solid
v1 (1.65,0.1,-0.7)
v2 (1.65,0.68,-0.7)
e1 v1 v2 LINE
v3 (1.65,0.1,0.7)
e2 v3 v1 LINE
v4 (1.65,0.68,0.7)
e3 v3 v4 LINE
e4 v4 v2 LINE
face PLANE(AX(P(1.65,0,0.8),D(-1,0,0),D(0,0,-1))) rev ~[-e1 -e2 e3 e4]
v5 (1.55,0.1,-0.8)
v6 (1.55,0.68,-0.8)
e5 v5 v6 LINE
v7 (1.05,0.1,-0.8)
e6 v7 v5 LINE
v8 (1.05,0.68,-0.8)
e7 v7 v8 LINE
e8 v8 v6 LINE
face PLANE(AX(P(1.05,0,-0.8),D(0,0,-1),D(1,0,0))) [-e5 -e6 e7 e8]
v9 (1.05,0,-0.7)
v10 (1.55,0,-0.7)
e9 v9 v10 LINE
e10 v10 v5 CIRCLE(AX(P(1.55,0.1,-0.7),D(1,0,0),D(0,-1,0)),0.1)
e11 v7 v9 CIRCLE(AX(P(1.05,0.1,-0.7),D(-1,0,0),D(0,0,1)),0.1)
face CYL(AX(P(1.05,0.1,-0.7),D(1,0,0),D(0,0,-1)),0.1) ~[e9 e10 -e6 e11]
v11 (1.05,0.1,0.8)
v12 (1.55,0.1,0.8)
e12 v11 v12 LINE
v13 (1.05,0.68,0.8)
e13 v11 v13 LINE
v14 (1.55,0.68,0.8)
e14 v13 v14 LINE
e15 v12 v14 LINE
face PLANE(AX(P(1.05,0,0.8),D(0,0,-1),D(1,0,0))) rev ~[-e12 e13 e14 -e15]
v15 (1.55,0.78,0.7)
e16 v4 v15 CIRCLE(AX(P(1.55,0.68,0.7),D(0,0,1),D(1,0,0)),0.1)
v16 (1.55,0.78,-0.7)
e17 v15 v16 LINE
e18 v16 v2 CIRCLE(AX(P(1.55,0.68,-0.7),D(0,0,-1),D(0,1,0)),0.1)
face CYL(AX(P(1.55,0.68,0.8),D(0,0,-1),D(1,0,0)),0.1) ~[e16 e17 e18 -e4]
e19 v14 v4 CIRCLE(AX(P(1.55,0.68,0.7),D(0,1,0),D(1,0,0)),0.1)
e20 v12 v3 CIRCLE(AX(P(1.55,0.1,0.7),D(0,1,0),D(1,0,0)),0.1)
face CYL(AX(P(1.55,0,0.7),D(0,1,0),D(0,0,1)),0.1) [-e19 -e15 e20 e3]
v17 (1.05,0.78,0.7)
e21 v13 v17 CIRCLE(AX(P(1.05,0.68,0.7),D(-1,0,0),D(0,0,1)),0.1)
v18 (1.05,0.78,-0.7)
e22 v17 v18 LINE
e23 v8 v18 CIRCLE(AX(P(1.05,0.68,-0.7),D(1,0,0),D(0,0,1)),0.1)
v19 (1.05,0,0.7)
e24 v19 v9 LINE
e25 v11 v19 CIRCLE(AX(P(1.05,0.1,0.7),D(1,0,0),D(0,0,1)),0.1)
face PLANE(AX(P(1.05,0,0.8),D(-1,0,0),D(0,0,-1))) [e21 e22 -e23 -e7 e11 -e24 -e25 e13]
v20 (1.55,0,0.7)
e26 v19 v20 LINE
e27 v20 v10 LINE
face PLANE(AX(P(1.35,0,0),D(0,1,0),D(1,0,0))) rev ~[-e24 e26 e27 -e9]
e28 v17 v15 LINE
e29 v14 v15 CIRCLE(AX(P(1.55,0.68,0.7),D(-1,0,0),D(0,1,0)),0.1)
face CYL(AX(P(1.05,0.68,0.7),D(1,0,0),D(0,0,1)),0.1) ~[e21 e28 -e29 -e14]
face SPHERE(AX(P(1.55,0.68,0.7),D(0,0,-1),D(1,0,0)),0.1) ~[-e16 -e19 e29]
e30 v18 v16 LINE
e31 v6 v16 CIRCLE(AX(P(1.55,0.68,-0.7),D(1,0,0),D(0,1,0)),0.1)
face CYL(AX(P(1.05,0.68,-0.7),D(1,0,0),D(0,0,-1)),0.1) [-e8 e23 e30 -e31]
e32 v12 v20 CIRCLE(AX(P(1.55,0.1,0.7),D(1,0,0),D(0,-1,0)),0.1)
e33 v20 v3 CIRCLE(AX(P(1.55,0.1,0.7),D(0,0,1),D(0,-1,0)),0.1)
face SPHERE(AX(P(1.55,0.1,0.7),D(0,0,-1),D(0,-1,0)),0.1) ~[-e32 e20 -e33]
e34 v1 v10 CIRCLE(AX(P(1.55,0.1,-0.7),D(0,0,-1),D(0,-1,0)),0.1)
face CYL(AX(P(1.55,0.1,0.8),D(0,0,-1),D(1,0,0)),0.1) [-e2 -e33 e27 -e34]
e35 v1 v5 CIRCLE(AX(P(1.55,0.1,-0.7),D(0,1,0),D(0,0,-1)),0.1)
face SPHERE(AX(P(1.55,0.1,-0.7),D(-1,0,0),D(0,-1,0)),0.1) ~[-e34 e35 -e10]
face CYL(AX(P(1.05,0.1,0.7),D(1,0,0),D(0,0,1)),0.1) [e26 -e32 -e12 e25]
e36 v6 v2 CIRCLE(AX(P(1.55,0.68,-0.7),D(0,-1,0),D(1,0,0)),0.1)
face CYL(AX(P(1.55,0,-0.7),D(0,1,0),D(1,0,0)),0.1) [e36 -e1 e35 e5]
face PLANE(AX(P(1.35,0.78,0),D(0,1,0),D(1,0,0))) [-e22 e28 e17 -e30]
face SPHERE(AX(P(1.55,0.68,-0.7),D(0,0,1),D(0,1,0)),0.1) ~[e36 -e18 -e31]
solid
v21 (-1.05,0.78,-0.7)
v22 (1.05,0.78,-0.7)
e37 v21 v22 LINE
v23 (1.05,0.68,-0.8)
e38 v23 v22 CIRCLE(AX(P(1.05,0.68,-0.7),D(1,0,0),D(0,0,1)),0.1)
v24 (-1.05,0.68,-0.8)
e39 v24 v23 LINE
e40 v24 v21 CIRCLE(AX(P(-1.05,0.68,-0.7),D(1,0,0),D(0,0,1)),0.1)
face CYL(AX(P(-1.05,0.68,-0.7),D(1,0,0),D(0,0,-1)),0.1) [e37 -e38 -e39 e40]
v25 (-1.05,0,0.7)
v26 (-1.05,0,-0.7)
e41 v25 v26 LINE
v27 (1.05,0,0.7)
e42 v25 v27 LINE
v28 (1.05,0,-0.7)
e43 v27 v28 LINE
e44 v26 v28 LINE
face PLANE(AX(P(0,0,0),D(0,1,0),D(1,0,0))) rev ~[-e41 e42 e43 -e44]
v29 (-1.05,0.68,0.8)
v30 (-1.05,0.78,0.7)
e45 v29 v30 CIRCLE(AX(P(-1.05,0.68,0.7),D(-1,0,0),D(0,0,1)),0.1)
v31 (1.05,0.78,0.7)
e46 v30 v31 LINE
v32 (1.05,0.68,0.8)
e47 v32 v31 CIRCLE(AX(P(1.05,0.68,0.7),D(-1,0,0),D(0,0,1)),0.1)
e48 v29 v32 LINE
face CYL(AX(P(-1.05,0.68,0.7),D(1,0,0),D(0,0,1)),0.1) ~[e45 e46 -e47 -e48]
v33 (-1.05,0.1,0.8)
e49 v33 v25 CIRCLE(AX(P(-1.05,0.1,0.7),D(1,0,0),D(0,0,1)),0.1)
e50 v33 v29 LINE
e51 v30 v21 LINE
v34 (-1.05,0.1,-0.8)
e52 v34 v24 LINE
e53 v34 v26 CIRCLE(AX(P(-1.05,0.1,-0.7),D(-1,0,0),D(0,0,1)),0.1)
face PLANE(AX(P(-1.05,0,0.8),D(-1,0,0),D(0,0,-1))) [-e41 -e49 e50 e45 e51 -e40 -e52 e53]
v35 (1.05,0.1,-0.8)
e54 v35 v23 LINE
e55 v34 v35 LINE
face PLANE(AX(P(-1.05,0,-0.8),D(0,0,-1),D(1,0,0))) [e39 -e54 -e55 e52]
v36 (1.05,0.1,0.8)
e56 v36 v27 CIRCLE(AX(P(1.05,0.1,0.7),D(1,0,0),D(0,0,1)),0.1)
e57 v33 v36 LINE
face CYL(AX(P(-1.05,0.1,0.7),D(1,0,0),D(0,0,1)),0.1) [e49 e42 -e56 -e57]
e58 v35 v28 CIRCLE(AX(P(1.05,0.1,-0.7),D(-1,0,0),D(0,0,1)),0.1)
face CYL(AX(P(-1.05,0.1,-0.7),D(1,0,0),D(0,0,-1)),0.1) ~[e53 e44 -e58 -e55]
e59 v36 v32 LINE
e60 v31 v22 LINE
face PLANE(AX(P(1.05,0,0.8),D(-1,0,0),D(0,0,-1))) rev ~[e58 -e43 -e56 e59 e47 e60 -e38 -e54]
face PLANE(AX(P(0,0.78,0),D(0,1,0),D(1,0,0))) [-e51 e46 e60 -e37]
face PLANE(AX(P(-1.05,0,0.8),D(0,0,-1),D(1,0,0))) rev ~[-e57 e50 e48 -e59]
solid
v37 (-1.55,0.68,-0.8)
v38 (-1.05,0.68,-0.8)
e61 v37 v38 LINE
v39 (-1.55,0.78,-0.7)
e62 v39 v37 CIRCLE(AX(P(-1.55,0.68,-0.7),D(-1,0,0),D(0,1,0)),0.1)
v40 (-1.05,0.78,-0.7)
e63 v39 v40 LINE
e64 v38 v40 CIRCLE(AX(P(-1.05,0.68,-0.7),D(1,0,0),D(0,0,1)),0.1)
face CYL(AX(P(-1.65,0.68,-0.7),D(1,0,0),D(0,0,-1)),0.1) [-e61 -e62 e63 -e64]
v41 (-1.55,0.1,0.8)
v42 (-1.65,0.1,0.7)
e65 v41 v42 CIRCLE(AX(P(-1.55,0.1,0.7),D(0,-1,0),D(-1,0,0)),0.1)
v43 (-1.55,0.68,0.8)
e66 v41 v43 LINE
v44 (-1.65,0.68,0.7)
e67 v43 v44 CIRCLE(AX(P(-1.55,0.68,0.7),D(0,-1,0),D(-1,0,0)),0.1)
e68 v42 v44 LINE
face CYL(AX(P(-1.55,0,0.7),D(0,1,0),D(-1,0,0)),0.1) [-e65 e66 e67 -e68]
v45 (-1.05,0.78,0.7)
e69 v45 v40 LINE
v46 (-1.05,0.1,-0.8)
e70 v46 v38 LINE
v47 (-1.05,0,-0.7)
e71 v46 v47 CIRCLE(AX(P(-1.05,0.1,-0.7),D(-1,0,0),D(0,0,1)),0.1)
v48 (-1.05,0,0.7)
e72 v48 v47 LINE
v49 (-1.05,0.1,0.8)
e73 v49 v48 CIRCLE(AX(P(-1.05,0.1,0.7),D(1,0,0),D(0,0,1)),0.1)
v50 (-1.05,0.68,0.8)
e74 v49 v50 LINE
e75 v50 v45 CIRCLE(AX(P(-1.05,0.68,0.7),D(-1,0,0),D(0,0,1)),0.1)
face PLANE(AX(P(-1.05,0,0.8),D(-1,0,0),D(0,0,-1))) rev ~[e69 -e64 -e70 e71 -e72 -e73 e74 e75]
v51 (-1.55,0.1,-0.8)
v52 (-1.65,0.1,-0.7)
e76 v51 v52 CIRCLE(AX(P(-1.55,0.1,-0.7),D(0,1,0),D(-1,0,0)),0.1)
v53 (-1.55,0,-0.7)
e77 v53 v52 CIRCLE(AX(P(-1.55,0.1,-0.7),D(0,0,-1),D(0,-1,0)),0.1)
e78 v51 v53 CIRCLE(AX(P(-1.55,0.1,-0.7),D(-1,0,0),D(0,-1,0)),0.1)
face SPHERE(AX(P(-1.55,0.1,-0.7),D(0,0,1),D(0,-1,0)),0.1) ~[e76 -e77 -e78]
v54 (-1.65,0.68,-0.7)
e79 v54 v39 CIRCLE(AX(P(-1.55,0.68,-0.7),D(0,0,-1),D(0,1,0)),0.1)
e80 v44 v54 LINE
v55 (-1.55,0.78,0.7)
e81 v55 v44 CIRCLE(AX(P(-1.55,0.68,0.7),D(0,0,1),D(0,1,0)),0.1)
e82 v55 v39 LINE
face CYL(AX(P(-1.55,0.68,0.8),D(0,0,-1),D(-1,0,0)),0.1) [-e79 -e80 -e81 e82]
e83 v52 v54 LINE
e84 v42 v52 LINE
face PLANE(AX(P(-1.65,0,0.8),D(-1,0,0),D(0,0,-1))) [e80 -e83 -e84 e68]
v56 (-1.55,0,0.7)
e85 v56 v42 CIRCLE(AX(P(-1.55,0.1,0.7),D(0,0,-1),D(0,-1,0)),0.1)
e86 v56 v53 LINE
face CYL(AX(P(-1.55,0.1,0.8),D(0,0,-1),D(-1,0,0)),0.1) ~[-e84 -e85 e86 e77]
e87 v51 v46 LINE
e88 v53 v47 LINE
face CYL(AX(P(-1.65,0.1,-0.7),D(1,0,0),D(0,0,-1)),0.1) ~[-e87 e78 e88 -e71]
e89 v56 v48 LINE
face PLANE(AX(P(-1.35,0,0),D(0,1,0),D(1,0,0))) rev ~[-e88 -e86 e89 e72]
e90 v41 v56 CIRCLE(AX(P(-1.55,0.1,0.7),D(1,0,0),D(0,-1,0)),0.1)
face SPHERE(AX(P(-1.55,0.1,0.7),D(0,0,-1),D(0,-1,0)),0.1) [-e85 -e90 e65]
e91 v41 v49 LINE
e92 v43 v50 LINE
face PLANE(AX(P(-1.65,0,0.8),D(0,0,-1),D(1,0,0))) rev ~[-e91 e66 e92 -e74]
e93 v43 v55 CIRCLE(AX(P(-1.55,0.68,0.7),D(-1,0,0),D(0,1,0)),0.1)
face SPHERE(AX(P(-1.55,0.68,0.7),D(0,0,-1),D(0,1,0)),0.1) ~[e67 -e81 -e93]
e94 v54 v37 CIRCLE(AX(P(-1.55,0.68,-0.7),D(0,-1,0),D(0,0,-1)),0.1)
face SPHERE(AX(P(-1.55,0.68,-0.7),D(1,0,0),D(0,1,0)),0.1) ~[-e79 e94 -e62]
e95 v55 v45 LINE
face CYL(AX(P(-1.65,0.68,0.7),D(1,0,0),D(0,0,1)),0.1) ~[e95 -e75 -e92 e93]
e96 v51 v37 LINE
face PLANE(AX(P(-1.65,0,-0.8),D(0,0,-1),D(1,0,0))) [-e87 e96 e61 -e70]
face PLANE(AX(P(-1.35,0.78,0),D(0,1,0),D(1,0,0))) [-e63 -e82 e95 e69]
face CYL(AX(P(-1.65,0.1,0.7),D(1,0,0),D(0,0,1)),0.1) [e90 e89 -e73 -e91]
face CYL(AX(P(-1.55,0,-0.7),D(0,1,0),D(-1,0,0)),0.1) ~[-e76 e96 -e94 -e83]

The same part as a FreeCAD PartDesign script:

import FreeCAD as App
import Part
import Sketcher
from FreeCAD import Vector
Q = App.Units.Quantity


def edges_at(feature, points):
    """Names of the edges that pass closest to the given points."""
    edges = feature.Shape.Edges
    near = lambda p: min(range(len(edges)), key=lambda i: edges[i].distToShape(Part.Vertex(*p))[0])
    return sorted({f"Edge{near(p) + 1}" for p in points})

doc = App.newDocument("Part")
body = doc.addObject("PartDesign::Body", "Body")

# Sketch on XZ plane
sketch1 = body.newObject("Sketcher::SketchObject", "Sketch")
sketch1.AttachmentSupport = (doc.getObject("XZ_Plane"), [""])
sketch1.MapMode = "FlatFace"
sketch1.addGeometry(Part.LineSegment(Vector(-1.1, -0.8, 0), Vector(-1.1, 0.8, 0)), False)
sketch1.addGeometry(Part.LineSegment(Vector(-1.1, 0.8, 0), Vector(1.1, 0.8, 0)), False)
sketch1.addGeometry(Part.LineSegment(Vector(1.1, 0.8, 0), Vector(1.1, -0.8, 0)), False)
sketch1.addGeometry(Part.LineSegment(Vector(1.1, -0.8, 0), Vector(-1.1, -0.8, 0)), False)
sketch1.addConstraint(Sketcher.Constraint("Coincident", 0, 2, 1, 1))
sketch1.addConstraint(Sketcher.Constraint("Coincident", 1, 2, 2, 1))
sketch1.addConstraint(Sketcher.Constraint("Coincident", 2, 2, 3, 1))
sketch1.addConstraint(Sketcher.Constraint("Coincident", 3, 2, 0, 1))
sketch1.addConstraint(Sketcher.Constraint("Vertical", 0))
sketch1.addConstraint(Sketcher.Constraint("Horizontal", 1))
sketch1.addConstraint(Sketcher.Constraint("Vertical", 2))
sketch1.addConstraint(Sketcher.Constraint("Horizontal", 3))
sketch1.addConstraint(Sketcher.Constraint("Symmetric", 0, 2, 2, 2, -1, 1))
sketch1.addConstraint(Sketcher.Constraint("DistanceX", 1, 1, 1, 2, Q("2.1 mm")))
sketch1.addConstraint(Sketcher.Constraint("DistanceY", 0, 1, 0, 2, Q("1.6 mm")))
pad1 = body.newObject("PartDesign::Pad", "Pad")
pad1.Profile = sketch1
pad1.Length = 0.78
pad1.Reversed = True
doc.recompute()

fillet = body.newObject("PartDesign::Fillet", "Fillet")
fillet.Base = (pad1, edges_at(pad1, [
    (0, 0.78, 0.8),
    (0, 0, 0.8),
    (0, 0, -0.8),
    (0, 0.78, -0.8),
]))
fillet.Radius = 0.1
body2 = doc.addObject("PartDesign::Body", "Body001")

# Sketch on XZ plane
sketch2 = body2.newObject("Sketcher::SketchObject", "Sketch001")
sketch2.AttachmentSupport = (doc.getObject("XZ_Plane001"), [""])
sketch2.MapMode = "FlatFace"
sketch2.addGeometry(Part.LineSegment(Vector(1.1, -0.8, 0), Vector(1.1, 0.8, 0)), False)
sketch2.addGeometry(Part.LineSegment(Vector(1.1, 0.8, 0), Vector(1.6, 0.8, 0)), False)
sketch2.addGeometry(Part.LineSegment(Vector(1.6, 0.8, 0), Vector(1.6, -0.8, 0)), False)
sketch2.addGeometry(Part.LineSegment(Vector(1.6, -0.8, 0), Vector(1.1, -0.8, 0)), False)
sketch2.addConstraint(Sketcher.Constraint("Coincident", 0, 2, 1, 1))
sketch2.addConstraint(Sketcher.Constraint("Coincident", 1, 2, 2, 1))
sketch2.addConstraint(Sketcher.Constraint("Coincident", 2, 2, 3, 1))
sketch2.addConstraint(Sketcher.Constraint("Coincident", 3, 2, 0, 1))
sketch2.addConstraint(Sketcher.Constraint("Vertical", 0))
sketch2.addConstraint(Sketcher.Constraint("Horizontal", 1))
sketch2.addConstraint(Sketcher.Constraint("Vertical", 2))
sketch2.addConstraint(Sketcher.Constraint("Horizontal", 3))
sketch2.addConstraint(Sketcher.Constraint("DistanceX", 1, 1, 1, 2, Q("0.6 mm")))
sketch2.addConstraint(Sketcher.Constraint("DistanceY", 0, 1, 0, 2, Q("1.6 mm")))
sketch2.addConstraint(Sketcher.Constraint("DistanceY", -1, 1, 0, 2, Q("0.8 mm")))
sketch2.addConstraint(Sketcher.Constraint("DistanceX", -1, 1, 0, 2, Q("1.05 mm")))
pad2 = body2.newObject("PartDesign::Pad", "Pad001")
pad2.Profile = sketch2
pad2.Length = 0.78
pad2.Reversed = True
doc.recompute()

fillet2 = body2.newObject("PartDesign::Fillet", "Fillet001")
fillet2.Base = (pad2, edges_at(pad2, [
    (1.65, 0.78, 0),
    (1.35, 0.78, -0.8),
    (1.35, 0, -0.8),
    (1.65, 0, 0),
    (1.35, 0, 0.8),
    (1.65, 0.39, -0.8),
    (1.65, 0.39, 0.8),
    (1.35, 0.78, 0.8),
]))
fillet2.Radius = 0.1
body3 = doc.addObject("PartDesign::Body", "Body002")

# Sketch on XZ plane
sketch3 = body3.newObject("Sketcher::SketchObject", "Sketch002")
sketch3.AttachmentSupport = (doc.getObject("XZ_Plane002"), [""])
sketch3.MapMode = "FlatFace"
sketch3.addGeometry(Part.LineSegment(Vector(-1.6, -0.8, 0), Vector(-1.6, 0.8, 0)), False)
sketch3.addGeometry(Part.LineSegment(Vector(-1.6, 0.8, 0), Vector(-1.1, 0.8, 0)), False)
sketch3.addGeometry(Part.LineSegment(Vector(-1.1, 0.8, 0), Vector(-1.1, -0.8, 0)), False)
sketch3.addGeometry(Part.LineSegment(Vector(-1.1, -0.8, 0), Vector(-1.6, -0.8, 0)), False)
sketch3.addConstraint(Sketcher.Constraint("Coincident", 0, 2, 1, 1))
sketch3.addConstraint(Sketcher.Constraint("Coincident", 1, 2, 2, 1))
sketch3.addConstraint(Sketcher.Constraint("Coincident", 2, 2, 3, 1))
sketch3.addConstraint(Sketcher.Constraint("Coincident", 3, 2, 0, 1))
sketch3.addConstraint(Sketcher.Constraint("Vertical", 0))
sketch3.addConstraint(Sketcher.Constraint("Horizontal", 1))
sketch3.addConstraint(Sketcher.Constraint("Vertical", 2))
sketch3.addConstraint(Sketcher.Constraint("Horizontal", 3))
sketch3.addConstraint(Sketcher.Constraint("DistanceX", 1, 1, 1, 2, Q("0.6 mm")))
sketch3.addConstraint(Sketcher.Constraint("DistanceY", 0, 1, 0, 2, Q("1.6 mm")))
sketch3.addConstraint(Sketcher.Constraint("DistanceY", -1, 1, 0, 2, Q("0.8 mm")))
sketch3.addConstraint(Sketcher.Constraint("DistanceX", 0, 2, -1, 1, Q("1.65 mm")))
pad3 = body3.newObject("PartDesign::Pad", "Pad002")
pad3.Profile = sketch3
pad3.Length = 0.78
pad3.Reversed = True
doc.recompute()

fillet3 = body3.newObject("PartDesign::Fillet", "Fillet002")
fillet3.Base = (pad3, edges_at(pad3, [
    (-1.35, 0.78, -0.8),
    (-1.65, 0.78, 0),
    (-1.35, 0.78, 0.8),
    (-1.65, 0, 0),
    (-1.35, 0, -0.8),
    (-1.35, 0, 0.8),
    (-1.65, 0.39, 0.8),
    (-1.65, 0.39, -0.8),
]))
fillet3.Radius = 0.1

doc.recompute()
